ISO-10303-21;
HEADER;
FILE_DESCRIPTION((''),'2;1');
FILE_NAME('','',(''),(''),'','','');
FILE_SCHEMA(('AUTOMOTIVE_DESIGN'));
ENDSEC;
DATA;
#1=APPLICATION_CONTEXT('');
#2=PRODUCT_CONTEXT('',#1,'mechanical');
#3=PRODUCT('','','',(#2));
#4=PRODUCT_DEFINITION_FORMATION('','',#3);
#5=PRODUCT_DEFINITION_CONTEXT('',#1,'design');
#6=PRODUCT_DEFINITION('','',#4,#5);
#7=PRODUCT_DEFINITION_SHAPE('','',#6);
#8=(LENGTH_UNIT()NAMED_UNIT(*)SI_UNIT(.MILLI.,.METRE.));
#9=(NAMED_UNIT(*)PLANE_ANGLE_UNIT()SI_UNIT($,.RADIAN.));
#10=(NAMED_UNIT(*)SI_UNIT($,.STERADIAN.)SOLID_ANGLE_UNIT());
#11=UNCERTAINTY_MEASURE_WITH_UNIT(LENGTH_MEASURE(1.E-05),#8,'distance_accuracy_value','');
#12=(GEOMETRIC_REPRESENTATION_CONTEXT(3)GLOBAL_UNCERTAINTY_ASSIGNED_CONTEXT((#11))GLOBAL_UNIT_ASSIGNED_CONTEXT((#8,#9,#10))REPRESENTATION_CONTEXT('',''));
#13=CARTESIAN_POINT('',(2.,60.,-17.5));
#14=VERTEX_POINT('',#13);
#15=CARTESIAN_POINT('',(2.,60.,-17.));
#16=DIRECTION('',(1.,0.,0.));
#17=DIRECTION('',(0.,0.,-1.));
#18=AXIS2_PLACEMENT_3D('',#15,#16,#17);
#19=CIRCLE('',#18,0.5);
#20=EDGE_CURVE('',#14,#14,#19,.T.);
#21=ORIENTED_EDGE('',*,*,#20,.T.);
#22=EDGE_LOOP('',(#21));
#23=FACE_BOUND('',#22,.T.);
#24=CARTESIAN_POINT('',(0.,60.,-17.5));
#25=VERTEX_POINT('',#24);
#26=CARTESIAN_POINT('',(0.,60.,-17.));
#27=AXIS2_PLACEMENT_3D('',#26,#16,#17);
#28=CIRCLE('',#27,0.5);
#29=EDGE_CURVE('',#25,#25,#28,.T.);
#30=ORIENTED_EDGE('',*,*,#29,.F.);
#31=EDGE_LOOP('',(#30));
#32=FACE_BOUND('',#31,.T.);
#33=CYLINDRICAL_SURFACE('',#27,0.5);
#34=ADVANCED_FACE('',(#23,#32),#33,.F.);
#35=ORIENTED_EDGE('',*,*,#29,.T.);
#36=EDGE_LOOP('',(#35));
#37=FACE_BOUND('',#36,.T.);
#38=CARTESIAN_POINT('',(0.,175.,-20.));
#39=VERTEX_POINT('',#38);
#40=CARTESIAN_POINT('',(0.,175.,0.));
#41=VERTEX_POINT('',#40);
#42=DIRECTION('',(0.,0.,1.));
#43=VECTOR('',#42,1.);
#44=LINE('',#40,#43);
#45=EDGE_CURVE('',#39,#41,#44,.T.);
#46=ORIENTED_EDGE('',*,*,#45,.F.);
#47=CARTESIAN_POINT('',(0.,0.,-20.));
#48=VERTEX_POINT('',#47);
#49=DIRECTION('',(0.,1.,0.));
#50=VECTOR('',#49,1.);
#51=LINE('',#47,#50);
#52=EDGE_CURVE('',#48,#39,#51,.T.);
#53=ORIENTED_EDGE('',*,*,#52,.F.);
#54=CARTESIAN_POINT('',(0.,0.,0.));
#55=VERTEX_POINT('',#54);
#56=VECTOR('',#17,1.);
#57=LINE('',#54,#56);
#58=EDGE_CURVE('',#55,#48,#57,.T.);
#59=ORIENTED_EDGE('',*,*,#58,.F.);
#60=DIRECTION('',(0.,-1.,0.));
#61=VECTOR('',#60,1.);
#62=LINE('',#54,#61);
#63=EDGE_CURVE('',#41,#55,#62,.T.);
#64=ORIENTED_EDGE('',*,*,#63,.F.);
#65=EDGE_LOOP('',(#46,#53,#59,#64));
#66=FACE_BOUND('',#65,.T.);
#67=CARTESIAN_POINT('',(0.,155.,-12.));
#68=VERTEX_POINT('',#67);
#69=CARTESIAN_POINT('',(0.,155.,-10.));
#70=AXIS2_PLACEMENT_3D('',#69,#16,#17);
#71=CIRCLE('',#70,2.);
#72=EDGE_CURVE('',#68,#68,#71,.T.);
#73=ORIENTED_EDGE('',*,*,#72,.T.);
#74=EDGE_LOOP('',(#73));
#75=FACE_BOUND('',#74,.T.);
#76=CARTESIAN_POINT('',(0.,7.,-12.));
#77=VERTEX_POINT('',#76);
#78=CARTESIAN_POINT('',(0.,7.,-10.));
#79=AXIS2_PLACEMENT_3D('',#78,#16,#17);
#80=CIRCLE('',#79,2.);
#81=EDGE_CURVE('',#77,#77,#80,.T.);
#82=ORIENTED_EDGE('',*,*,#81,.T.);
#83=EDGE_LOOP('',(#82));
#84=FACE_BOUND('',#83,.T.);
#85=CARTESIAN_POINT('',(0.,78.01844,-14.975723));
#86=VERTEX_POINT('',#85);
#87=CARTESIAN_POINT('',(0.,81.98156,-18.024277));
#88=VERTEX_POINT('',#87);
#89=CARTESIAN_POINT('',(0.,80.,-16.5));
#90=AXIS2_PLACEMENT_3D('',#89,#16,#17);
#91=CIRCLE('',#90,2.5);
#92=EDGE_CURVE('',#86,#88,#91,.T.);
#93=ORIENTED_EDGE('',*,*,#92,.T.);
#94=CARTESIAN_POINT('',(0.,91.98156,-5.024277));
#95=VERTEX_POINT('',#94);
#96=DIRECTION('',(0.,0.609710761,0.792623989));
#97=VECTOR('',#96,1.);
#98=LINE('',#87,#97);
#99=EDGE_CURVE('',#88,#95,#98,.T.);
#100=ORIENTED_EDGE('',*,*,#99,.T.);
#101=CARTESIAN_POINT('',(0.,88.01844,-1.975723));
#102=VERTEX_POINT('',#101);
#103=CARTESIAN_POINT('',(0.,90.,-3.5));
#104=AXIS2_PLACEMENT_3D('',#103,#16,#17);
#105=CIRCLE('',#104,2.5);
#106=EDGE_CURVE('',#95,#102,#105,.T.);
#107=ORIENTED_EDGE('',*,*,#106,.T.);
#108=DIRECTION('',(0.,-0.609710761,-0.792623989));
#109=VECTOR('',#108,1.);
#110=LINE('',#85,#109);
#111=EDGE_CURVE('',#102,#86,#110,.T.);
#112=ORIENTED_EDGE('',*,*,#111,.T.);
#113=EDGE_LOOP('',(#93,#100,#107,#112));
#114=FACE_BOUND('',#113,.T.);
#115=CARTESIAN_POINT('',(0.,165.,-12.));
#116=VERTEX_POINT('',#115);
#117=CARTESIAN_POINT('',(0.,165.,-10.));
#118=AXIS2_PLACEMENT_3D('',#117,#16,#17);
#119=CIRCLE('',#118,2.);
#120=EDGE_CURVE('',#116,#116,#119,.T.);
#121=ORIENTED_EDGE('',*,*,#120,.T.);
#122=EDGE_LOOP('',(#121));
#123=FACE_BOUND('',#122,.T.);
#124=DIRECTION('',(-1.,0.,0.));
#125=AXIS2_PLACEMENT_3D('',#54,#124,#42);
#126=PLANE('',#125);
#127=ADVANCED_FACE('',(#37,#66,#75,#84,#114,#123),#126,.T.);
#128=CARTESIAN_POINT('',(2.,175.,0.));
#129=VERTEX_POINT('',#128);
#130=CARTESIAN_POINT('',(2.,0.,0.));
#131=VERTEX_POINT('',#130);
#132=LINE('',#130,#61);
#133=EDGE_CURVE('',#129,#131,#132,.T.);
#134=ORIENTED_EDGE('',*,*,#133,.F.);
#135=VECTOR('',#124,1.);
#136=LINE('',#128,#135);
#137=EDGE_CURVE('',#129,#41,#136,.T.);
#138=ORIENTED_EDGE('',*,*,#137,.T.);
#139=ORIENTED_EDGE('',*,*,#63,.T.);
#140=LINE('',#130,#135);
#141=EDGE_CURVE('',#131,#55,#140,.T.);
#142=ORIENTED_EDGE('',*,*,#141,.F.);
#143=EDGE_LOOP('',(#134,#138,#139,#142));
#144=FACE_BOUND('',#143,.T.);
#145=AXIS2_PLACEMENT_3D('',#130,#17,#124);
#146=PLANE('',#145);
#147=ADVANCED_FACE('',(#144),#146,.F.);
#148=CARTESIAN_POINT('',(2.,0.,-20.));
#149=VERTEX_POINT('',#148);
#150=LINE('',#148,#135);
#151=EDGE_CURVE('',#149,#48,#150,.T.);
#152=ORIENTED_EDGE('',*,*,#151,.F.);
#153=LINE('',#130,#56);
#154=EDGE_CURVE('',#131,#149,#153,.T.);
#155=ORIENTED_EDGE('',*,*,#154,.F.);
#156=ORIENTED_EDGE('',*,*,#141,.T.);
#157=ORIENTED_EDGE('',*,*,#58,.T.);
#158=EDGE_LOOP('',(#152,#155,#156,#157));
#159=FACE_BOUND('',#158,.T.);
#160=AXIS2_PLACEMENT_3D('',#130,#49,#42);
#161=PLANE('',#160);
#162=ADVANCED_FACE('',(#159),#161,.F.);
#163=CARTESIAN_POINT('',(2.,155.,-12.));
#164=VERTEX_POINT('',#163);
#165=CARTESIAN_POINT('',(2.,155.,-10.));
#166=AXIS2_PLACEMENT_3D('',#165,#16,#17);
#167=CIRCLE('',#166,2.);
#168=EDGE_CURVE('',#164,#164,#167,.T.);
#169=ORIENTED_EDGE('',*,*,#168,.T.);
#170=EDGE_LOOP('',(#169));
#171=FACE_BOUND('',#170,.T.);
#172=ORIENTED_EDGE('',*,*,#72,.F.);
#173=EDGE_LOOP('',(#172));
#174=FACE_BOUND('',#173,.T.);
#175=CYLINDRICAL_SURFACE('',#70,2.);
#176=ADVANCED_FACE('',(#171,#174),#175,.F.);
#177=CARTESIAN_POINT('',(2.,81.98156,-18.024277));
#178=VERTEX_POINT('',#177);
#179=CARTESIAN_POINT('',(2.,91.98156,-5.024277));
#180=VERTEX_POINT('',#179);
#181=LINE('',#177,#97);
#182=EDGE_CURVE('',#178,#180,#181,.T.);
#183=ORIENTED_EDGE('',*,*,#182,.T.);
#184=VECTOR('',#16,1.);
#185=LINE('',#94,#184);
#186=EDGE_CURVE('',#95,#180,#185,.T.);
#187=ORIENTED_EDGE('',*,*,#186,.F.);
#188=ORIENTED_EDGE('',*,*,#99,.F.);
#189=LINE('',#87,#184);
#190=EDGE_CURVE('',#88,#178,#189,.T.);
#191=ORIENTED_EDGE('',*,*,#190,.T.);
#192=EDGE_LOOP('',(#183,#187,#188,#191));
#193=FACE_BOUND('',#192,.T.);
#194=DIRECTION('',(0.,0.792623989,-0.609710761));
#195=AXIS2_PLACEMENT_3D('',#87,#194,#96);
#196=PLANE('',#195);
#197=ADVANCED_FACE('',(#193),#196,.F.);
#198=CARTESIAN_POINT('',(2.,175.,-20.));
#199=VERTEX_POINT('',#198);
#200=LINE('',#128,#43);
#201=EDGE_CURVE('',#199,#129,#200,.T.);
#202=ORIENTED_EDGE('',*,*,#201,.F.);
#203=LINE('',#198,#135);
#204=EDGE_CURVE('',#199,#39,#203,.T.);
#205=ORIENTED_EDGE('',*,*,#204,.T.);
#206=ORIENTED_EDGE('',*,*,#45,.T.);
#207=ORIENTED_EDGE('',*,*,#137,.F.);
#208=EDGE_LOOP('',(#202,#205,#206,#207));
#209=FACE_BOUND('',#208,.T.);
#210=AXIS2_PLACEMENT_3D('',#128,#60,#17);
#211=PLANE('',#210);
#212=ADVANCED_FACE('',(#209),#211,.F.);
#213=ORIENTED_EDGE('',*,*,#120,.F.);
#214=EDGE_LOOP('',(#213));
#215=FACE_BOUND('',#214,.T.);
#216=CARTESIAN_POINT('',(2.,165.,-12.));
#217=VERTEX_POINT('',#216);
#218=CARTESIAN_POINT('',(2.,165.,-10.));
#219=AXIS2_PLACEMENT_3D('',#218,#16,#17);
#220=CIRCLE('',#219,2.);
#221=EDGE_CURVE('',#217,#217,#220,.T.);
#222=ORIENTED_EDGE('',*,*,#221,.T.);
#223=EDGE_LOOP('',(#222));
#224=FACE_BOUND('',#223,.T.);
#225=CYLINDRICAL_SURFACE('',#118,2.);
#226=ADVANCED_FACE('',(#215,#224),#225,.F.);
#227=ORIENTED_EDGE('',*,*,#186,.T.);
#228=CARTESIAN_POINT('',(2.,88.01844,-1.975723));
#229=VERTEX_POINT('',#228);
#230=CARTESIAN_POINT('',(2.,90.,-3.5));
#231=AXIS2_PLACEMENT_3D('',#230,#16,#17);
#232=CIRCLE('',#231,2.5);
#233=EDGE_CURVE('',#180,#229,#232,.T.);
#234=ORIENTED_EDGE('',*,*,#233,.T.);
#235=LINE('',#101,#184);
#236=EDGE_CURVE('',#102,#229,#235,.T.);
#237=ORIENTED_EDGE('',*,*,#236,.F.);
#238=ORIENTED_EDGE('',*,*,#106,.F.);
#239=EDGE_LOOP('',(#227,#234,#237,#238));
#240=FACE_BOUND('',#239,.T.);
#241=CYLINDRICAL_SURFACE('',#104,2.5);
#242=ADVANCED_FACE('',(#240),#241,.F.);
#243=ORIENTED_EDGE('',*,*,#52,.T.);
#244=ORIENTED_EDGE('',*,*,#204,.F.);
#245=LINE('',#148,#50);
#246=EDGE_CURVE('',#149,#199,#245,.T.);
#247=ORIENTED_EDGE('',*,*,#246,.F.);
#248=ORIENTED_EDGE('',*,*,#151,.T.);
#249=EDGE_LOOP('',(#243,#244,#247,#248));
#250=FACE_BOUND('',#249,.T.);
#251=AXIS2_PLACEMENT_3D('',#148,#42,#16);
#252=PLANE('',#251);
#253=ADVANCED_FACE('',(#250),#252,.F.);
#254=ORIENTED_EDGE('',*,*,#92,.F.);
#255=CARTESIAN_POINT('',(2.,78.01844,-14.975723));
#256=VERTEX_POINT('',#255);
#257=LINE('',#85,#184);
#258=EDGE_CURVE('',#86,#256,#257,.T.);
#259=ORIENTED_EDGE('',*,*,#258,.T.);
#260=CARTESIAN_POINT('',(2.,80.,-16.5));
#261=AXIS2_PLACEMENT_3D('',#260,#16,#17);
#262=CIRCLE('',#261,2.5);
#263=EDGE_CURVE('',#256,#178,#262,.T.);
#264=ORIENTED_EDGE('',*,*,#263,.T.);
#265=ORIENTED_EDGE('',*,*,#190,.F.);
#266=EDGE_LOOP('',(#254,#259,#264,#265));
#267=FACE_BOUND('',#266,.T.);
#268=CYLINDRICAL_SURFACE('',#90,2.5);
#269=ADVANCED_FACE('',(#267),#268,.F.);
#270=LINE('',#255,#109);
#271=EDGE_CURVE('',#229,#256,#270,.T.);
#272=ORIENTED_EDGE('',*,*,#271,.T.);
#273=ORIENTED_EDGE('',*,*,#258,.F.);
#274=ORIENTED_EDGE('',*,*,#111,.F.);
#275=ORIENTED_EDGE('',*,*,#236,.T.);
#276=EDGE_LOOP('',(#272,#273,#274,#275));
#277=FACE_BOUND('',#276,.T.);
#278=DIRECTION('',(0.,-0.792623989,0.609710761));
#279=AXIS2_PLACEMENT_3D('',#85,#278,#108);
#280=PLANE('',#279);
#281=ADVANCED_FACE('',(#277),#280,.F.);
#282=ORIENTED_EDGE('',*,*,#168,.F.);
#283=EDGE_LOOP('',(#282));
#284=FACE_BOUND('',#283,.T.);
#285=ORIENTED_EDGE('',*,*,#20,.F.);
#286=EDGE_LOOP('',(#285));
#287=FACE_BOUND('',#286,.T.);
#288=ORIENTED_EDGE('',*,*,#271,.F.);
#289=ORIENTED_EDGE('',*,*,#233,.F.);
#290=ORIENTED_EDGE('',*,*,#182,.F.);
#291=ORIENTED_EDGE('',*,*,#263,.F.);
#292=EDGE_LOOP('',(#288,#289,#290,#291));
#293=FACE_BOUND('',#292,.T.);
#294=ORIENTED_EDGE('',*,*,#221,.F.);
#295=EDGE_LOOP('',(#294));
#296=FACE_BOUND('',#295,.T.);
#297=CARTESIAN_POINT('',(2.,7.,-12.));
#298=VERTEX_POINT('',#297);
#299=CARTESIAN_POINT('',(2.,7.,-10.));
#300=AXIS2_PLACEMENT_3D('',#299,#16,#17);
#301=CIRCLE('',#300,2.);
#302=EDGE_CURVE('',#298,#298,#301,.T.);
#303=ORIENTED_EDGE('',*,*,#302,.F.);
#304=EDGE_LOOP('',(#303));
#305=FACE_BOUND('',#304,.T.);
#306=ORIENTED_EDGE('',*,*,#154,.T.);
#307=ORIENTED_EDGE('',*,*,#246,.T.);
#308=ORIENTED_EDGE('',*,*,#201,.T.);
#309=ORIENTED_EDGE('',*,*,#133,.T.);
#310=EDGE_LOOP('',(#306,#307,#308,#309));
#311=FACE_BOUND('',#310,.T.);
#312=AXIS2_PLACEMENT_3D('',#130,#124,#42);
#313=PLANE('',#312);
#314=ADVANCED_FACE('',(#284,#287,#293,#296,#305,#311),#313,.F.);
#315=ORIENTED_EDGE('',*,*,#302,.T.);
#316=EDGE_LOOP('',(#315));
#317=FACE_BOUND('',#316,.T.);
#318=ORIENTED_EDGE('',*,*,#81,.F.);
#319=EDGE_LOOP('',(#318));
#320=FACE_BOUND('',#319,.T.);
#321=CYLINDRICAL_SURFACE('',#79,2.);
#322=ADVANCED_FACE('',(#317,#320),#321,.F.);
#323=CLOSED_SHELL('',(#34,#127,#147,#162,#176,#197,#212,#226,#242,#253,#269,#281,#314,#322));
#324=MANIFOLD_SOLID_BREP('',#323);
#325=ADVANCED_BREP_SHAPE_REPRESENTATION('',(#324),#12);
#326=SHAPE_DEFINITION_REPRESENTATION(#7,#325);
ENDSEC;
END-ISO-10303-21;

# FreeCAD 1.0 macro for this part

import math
import FreeCAD as App
import Part
import Sketcher


def add_polygon(sketch, points):
    """Adds a closed chain of lines whose ends are joined by coincident constraints."""
    first, n = sketch.GeometryCount, len(points)
    for a, b in zip(points, points[1:] + points[:1]):
        sketch.addGeometry(Part.LineSegment(App.Vector(*a, 0), App.Vector(*b, 0)), False)
    for i in range(n):
        sketch.addConstraint(Sketcher.Constraint("Coincident", first + i, 2, first + (i + 1) % n, 1))

doc = App.newDocument("Part")
body = doc.addObject("PartDesign::Body", "Body")

# Sketch on YZ plane
sketch1 = doc.addObject("Sketcher::SketchObject", "Sketch")
body.addObject(sketch1)
sketch1.AttachmentSupport = (doc.YZ_Plane, [""])
sketch1.MapMode = "FlatFace"
add_polygon(sketch1, [(175, 0), (0, 0), (0, -20), (175, -20)])  # lines 0-3
sketch1.addConstraint([
    Sketcher.Constraint("Horizontal", 0),
    Sketcher.Constraint("Vertical", 1),
    Sketcher.Constraint("Horizontal", 2),
    Sketcher.Constraint("Vertical", 3),
    Sketcher.Constraint("Coincident", 0, 2, -1, 1),
    Sketcher.Constraint("DistanceX", 0, 2, 0, 1, 175.0),
    Sketcher.Constraint("DistanceY", 1, 2, 1, 1, 20.0),
])
pad1 = doc.addObject("PartDesign::Pad", "Pad")
body.addObject(pad1)
pad1.Profile = sketch1
pad1.Length = 2

# Sketch on YZ plane
sketch2 = doc.addObject("Sketcher::SketchObject", "Sketch001")
body.addObject(sketch2)
sketch2.AttachmentSupport = (doc.YZ_Plane, [""])
sketch2.MapMode = "FlatFace"
sketch2.AttachmentOffset = App.Placement(App.Vector(0, 0, 2), App.Rotation())
sketch2.addGeometry([
    Part.Circle(App.Vector(7, -10, 0), App.Vector(0, 0, 1), 2),  # 0
    Part.Circle(App.Vector(165, -10, 0), App.Vector(0, 0, 1), 2),  # 1
    Part.Circle(App.Vector(155, -10, 0), App.Vector(0, 0, 1), 2),  # 2
    Part.Circle(App.Vector(60, -17, 0), App.Vector(0, 0, 1), 0.5),  # 3
    Part.LineSegment(App.Vector(88.01844, -1.975723, 0), App.Vector(78.01844, -14.975723, 0)),  # 4
    Part.ArcOfCircle(Part.Circle(App.Vector(80, -16.5, 0), App.Vector(0, 0, 1), 2.5), math.radians(142.431408), math.radians(322.431408)),  # 5
    Part.LineSegment(App.Vector(81.98156, -18.024277, 0), App.Vector(91.98156, -5.024277, 0)),  # 6
    Part.ArcOfCircle(Part.Circle(App.Vector(90, -3.5, 0), App.Vector(0, 0, 1), 2.5), math.radians(-37.568592), math.radians(142.431408)),  # 7
], False)
sketch2.addConstraint([
    Sketcher.Constraint("Tangent", 4, 2, 5, 1),
    Sketcher.Constraint("Tangent", 5, 2, 6, 1),
    Sketcher.Constraint("Tangent", 6, 2, 7, 1),
    Sketcher.Constraint("Tangent", 7, 2, 4, 1),
    Sketcher.Constraint("Equal", 0, 1),
    Sketcher.Constraint("Equal", 1, 2),
    Sketcher.Constraint("Equal", 5, 7),
    Sketcher.Constraint("Horizontal", 0, 3, 1, 3),
    Sketcher.Constraint("Horizontal", 1, 3, 2, 3),
    Sketcher.Constraint("Diameter", 0, 4.0),
    Sketcher.Constraint("Diameter", 3, 1.0),
    Sketcher.Constraint("Radius", 5, 2.5),
    Sketcher.Constraint("DistanceX", -1, 1, 0, 3, 7.0),
    Sketcher.Constraint("DistanceY", 0, 3, -1, 1, 10.0),
    Sketcher.Constraint("DistanceX", -1, 1, 1, 3, 165.0),
    Sketcher.Constraint("DistanceX", -1, 1, 2, 3, 155.0),
    Sketcher.Constraint("DistanceX", -1, 1, 3, 3, 60.0),
    Sketcher.Constraint("DistanceY", 3, 3, -1, 1, 17.0),
    Sketcher.Constraint("DistanceX", -1, 1, 5, 3, 80.0),
    Sketcher.Constraint("DistanceX", -1, 1, 7, 3, 90.0),
    Sketcher.Constraint("DistanceY", 5, 3, 7, 3, 13.0),
    Sketcher.Constraint("DistanceY", 5, 3, -1, 1, 16.5),
])
pocket1 = doc.addObject("PartDesign::Pocket", "Pocket")
body.addObject(pocket1)
pocket1.Profile = sketch2
pocket1.Length = 2

doc.recompute()
